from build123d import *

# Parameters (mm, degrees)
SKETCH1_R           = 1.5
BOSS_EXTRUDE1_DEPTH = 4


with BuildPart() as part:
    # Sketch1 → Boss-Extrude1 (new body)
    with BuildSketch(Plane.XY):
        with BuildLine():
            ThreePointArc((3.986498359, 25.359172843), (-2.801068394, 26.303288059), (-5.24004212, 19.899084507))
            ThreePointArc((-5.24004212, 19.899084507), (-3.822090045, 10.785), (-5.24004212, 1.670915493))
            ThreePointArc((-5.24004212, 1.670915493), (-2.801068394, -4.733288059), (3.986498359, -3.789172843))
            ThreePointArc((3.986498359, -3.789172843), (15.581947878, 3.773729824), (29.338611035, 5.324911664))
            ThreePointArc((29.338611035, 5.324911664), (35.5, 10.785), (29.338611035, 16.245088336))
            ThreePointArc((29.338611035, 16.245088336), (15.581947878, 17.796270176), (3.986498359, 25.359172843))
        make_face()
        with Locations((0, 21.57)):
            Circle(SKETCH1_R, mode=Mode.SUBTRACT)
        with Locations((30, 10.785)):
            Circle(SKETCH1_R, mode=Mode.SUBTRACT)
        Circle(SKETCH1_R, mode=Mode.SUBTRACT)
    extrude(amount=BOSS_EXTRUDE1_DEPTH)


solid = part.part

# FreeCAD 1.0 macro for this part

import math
import FreeCAD as App
import Part
import Sketcher

V = App.Vector
Q = App.Units.Quantity

doc = App.newDocument("Part")
params = doc.addObject("Spreadsheet::Sheet", "Params")
for row, (alias, value) in enumerate([
    ("sketch1_diameter", "3 mm"),
    ("sketch1_radius", "30 mm"),
    ("sketch1_radius2", "5.5 mm"),
    ("pad1_length", "4 mm"),
], start=1):
    params.set(f"A{row}", alias)
    params.set(f"B{row}", "=" + value)
    params.setAlias(f"B{row}", alias)

body = doc.addObject("PartDesign::Body", "Body")

# Sketch on XY plane
sketch1 = body.newObject("Sketcher::SketchObject", "Sketch")
sketch1.AttachmentSupport = (doc.getObject("XY_Plane"), [""])
sketch1.MapMode = "FlatFace"
sketch1.addGeometry([
    Part.ArcOfCircle(Part.Circle(V(0, 21.6, 0), V(0, 0, 1), 5.5), math.radians(44), math.radians(198)),  # 0
    Part.ArcOfCircle(Part.Circle(V(-33.8, 10.8, 0), V(0, 0, 1), 30), math.radians(-18), math.radians(18)),  # 1
    Part.ArcOfCircle(Part.Circle(V(0, 0, 0), V(0, 0, 1), 5.5), math.radians(162), math.radians(316)),  # 2
    Part.ArcOfCircle(Part.Circle(V(25.7, -24.5, 0), V(0, 0, 1), 30), math.radians(83), math.radians(136)),  # 3
    Part.ArcOfCircle(Part.Circle(V(30, 10.8, 0), V(0, 0, 1), 5.5), math.radians(-97), math.radians(97)),  # 4
    Part.ArcOfCircle(Part.Circle(V(25.7, 46, 0), V(0, 0, 1), 30), math.radians(-136), math.radians(-83)),  # 5
    Part.Circle(V(0, 0, 0), V(0, 0, 1), 1.5),  # 6
    Part.Circle(V(0, 21.6, 0), V(0, 0, 1), 1.5),  # 7
    Part.Circle(V(30, 10.8, 0), V(0, 0, 1), 1.5),  # 8
], False)
sketch1.addConstraint([
    Sketcher.Constraint("Tangent", 0, 2, 1, 2),
    Sketcher.Constraint("Tangent", 1, 1, 2, 1),
    Sketcher.Constraint("Tangent", 2, 2, 3, 2),
    Sketcher.Constraint("Tangent", 3, 1, 4, 1),
    Sketcher.Constraint("Tangent", 4, 2, 5, 2),
    Sketcher.Constraint("Tangent", 5, 1, 0, 1),
    Sketcher.Constraint("Coincident", 2, 3, -1, 1),
    Sketcher.Constraint("Coincident", 6, 3, -1, 1),
    Sketcher.Constraint("Coincident", 7, 3, 0, 3),
    Sketcher.Constraint("Coincident", 8, 3, 4, 3),
    Sketcher.Constraint("Equal", 0, 2),
    Sketcher.Constraint("Equal", 1, 3),
    Sketcher.Constraint("Equal", 2, 4),
    Sketcher.Constraint("Equal", 3, 5),
    Sketcher.Constraint("Equal", 6, 7),
    Sketcher.Constraint("Equal", 7, 8),
    Sketcher.Constraint("PointOnObject", 0, 3, -2),
    Sketcher.Constraint("Horizontal", 1, 3, 4, 3),
    Sketcher.Constraint("Diameter", 6, Q("3 mm")),
    Sketcher.Constraint("Radius", 1, Q("30 mm")),
    Sketcher.Constraint("Radius", 0, Q("5.5 mm")),
    Sketcher.Constraint("DistanceX", -1, 1, 4, 3, Q("30 mm")),
    Sketcher.Constraint("DistanceY", -1, 1, 0, 3, Q("21.57 mm")),
])
sketch1.setExpression("Constraints[18]", "Params.sketch1_diameter")
sketch1.setExpression("Constraints[19]", "Params.sketch1_radius")
sketch1.setExpression("Constraints[20]", "Params.sketch1_radius2")
pad1 = body.newObject("PartDesign::Pad", "Pad")
pad1.Profile = sketch1
pad1.setExpression("Length", "Params.pad1_length")

doc.recompute()
